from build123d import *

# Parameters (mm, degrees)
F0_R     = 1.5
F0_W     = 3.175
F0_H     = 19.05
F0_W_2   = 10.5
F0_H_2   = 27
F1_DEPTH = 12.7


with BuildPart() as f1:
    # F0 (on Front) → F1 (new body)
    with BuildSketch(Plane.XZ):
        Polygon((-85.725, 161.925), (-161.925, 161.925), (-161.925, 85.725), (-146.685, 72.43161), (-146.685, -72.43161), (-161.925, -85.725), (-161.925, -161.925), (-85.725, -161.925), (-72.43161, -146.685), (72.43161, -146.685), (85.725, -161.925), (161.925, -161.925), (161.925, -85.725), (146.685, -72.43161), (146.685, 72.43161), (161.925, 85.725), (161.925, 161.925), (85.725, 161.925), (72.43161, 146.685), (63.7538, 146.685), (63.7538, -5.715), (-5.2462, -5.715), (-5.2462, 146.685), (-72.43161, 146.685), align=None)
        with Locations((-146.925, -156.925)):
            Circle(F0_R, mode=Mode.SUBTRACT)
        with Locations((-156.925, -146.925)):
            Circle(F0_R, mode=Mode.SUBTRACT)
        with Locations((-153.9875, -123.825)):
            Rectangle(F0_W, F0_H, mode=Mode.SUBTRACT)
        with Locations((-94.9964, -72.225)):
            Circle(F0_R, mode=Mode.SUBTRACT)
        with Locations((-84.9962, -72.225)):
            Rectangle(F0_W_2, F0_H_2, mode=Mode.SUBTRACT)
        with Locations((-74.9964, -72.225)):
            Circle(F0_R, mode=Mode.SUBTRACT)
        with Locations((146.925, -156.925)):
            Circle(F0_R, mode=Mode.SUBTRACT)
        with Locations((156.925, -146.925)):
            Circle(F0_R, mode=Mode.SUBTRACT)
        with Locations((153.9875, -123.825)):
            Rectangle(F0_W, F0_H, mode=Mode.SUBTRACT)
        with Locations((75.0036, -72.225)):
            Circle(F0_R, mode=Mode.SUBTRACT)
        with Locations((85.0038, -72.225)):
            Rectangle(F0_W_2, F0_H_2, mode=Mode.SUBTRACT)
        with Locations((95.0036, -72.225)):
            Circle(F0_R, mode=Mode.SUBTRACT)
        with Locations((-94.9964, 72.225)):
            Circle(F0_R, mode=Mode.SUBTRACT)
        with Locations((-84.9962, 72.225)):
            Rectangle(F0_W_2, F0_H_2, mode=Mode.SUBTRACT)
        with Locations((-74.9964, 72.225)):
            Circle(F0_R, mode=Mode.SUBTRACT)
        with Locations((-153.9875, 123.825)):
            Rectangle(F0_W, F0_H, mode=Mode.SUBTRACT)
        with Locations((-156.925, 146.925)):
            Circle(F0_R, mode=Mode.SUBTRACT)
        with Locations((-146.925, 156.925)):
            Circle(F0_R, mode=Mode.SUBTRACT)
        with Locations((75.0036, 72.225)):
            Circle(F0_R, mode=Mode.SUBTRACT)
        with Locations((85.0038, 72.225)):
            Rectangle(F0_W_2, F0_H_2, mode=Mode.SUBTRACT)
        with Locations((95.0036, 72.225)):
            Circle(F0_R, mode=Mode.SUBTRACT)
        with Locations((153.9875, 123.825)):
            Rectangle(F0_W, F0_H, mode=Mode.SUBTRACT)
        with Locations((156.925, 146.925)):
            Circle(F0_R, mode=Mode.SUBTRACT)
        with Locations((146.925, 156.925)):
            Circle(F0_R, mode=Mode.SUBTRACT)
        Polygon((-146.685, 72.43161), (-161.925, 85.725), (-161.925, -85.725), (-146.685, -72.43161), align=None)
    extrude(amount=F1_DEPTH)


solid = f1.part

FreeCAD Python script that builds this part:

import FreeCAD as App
import Part
import Sketcher
Q = App.Units.Quantity


def add_polygon(sketch, points):
    """Adds a closed chain of lines whose ends are joined by coincident constraints."""
    first, n = sketch.GeometryCount, len(points)
    for a, b in zip(points, points[1:] + points[:1]):
        sketch.addGeometry(Part.LineSegment(App.Vector(*a, 0), App.Vector(*b, 0)), False)
    for i in range(n):
        sketch.addConstraint(Sketcher.Constraint("Coincident", first + i, 2, first + (i + 1) % n, 1))

doc = App.newDocument("Part")
body = doc.addObject("PartDesign::Body", "Body")

# Sketch on XZ plane
sketch1 = body.newObject("Sketcher::SketchObject", "Sketch")
sketch1.AttachmentSupport = (doc.getObject("XZ_Plane"), [""])
sketch1.MapMode = "FlatFace"
add_polygon(sketch1, [(-85.725, 161.925), (-161.925, 161.925), (-161.925, -161.925), (-85.725, -161.925), (-72.43161, -146.685), (72.43161, -146.685), (85.725, -161.925), (161.925, -161.925), (161.925, -85.725), (146.685, -72.43161), (146.685, 72.43161), (161.925, 85.725), (161.925, 161.925), (85.725, 161.925), (72.43161, 146.685), (63.7538, 146.685), (63.7538, -5.715), (-5.2462, -5.715), (-5.2462, 146.685), (-72.43161, 146.685)])  # lines 0-19
sketch1.addGeometry(Part.Circle(App.Vector(-146.925, -156.925, 0), App.Vector(0, 0, 1), 1.5), False)  # 20
sketch1.addGeometry(Part.Circle(App.Vector(-156.925, -146.925, 0), App.Vector(0, 0, 1), 1.5), False)  # 21
add_polygon(sketch1, [(-152.4, -133.35), (-155.575, -133.35), (-155.575, -114.3), (-152.4, -114.3)])  # lines 22-25
sketch1.addGeometry(Part.Circle(App.Vector(-94.9964, -72.225, 0), App.Vector(0, 0, 1), 1.5), False)  # 26
add_polygon(sketch1, [(-79.7462, -85.725), (-90.2462, -85.725), (-90.2462, -58.725), (-79.7462, -58.725)])  # lines 27-30
sketch1.addGeometry(Part.Circle(App.Vector(-74.9964, -72.225, 0), App.Vector(0, 0, 1), 1.5), False)  # 31
sketch1.addGeometry(Part.Circle(App.Vector(146.925, -156.925, 0), App.Vector(0, 0, 1), 1.5), False)  # 32
sketch1.addGeometry(Part.Circle(App.Vector(156.925, -146.925, 0), App.Vector(0, 0, 1), 1.5), False)  # 33
add_polygon(sketch1, [(155.575, -133.35), (152.4, -133.35), (152.4, -114.3), (155.575, -114.3)])  # lines 34-37
sketch1.addGeometry(Part.Circle(App.Vector(75.0036, -72.225, 0), App.Vector(0, 0, 1), 1.5), False)  # 38
add_polygon(sketch1, [(90.2538, -85.725), (79.7538, -85.725), (79.7538, -58.725), (90.2538, -58.725)])  # lines 39-42
sketch1.addGeometry(Part.Circle(App.Vector(95.0036, -72.225, 0), App.Vector(0, 0, 1), 1.5), False)  # 43
sketch1.addGeometry(Part.Circle(App.Vector(-94.9964, 72.225, 0), App.Vector(0, 0, 1), 1.5), False)  # 44
add_polygon(sketch1, [(-79.7462, 58.725), (-90.2462, 58.725), (-90.2462, 85.725), (-79.7462, 85.725)])  # lines 45-48
sketch1.addGeometry(Part.Circle(App.Vector(-74.9964, 72.225, 0), App.Vector(0, 0, 1), 1.5), False)  # 49
add_polygon(sketch1, [(-152.4, 114.3), (-155.575, 114.3), (-155.575, 133.35), (-152.4, 133.35)])  # lines 50-53
sketch1.addGeometry(Part.Circle(App.Vector(-156.925, 146.925, 0), App.Vector(0, 0, 1), 1.5), False)  # 54
sketch1.addGeometry(Part.Circle(App.Vector(-146.925, 156.925, 0), App.Vector(0, 0, 1), 1.5), False)  # 55
sketch1.addGeometry(Part.Circle(App.Vector(75.0036, 72.225, 0), App.Vector(0, 0, 1), 1.5), False)  # 56
add_polygon(sketch1, [(90.2538, 58.725), (79.7538, 58.725), (79.7538, 85.725), (90.2538, 85.725)])  # lines 57-60
sketch1.addGeometry(Part.Circle(App.Vector(95.0036, 72.225, 0), App.Vector(0, 0, 1), 1.5), False)  # 61
add_polygon(sketch1, [(155.575, 114.3), (152.4, 114.3), (152.4, 133.35), (155.575, 133.35)])  # lines 62-65
sketch1.addGeometry(Part.Circle(App.Vector(156.925, 146.925, 0), App.Vector(0, 0, 1), 1.5), False)  # 66
sketch1.addGeometry(Part.Circle(App.Vector(146.925, 156.925, 0), App.Vector(0, 0, 1), 1.5), False)  # 67
sketch1.addConstraint([
    Sketcher.Constraint("Horizontal", 0),
    Sketcher.Constraint("Vertical", 1),
    Sketcher.Constraint("Horizontal", 2),
    Sketcher.Constraint("Horizontal", 4),
    Sketcher.Constraint("Horizontal", 6),
    Sketcher.Constraint("Vertical", 7),
    Sketcher.Constraint("Vertical", 9),
    Sketcher.Constraint("Vertical", 11),
    Sketcher.Constraint("Horizontal", 12),
    Sketcher.Constraint("Horizontal", 14),
    Sketcher.Constraint("Vertical", 15),
    Sketcher.Constraint("Horizontal", 16),
    Sketcher.Constraint("Vertical", 17),
    Sketcher.Constraint("Horizontal", 18),
    Sketcher.Constraint("Horizontal", 22),
    Sketcher.Constraint("Vertical", 23),
    Sketcher.Constraint("Horizontal", 24),
    Sketcher.Constraint("Vertical", 25),
    Sketcher.Constraint("Horizontal", 27),
    Sketcher.Constraint("Vertical", 28),
    Sketcher.Constraint("Horizontal", 29),
    Sketcher.Constraint("Vertical", 30),
    Sketcher.Constraint("Horizontal", 34),
    Sketcher.Constraint("Vertical", 35),
    Sketcher.Constraint("Horizontal", 36),
    Sketcher.Constraint("Vertical", 37),
    Sketcher.Constraint("Horizontal", 39),
    Sketcher.Constraint("Vertical", 40),
    Sketcher.Constraint("Horizontal", 41),
    Sketcher.Constraint("Vertical", 42),
    Sketcher.Constraint("Horizontal", 45),
    Sketcher.Constraint("Vertical", 46),
    Sketcher.Constraint("Horizontal", 47),
    Sketcher.Constraint("Vertical", 48),
    Sketcher.Constraint("Horizontal", 50),
    Sketcher.Constraint("Vertical", 51),
    Sketcher.Constraint("Horizontal", 52),
    Sketcher.Constraint("Vertical", 53),
    Sketcher.Constraint("Horizontal", 57),
    Sketcher.Constraint("Vertical", 58),
    Sketcher.Constraint("Horizontal", 59),
    Sketcher.Constraint("Vertical", 60),
    Sketcher.Constraint("Horizontal", 62),
    Sketcher.Constraint("Vertical", 63),
    Sketcher.Constraint("Horizontal", 64),
    Sketcher.Constraint("Vertical", 65),
    Sketcher.Constraint("Equal", 20, 21),
    Sketcher.Constraint("Equal", 21, 26),
    Sketcher.Constraint("Equal", 26, 31),
    Sketcher.Constraint("Equal", 31, 32),
    Sketcher.Constraint("Equal", 32, 33),
    Sketcher.Constraint("Equal", 33, 38),
    Sketcher.Constraint("Equal", 38, 43),
    Sketcher.Constraint("Equal", 43, 44),
    Sketcher.Constraint("Equal", 44, 49),
    Sketcher.Constraint("Equal", 49, 54),
    Sketcher.Constraint("Equal", 54, 55),
    Sketcher.Constraint("Equal", 55, 56),
    Sketcher.Constraint("Equal", 56, 61),
    Sketcher.Constraint("Equal", 61, 66),
    Sketcher.Constraint("Equal", 66, 67),
    Sketcher.Constraint("Symmetric", 33, 3, 54, 3, -1, 1),
    Sketcher.Constraint("Symmetric", 32, 3, 55, 3, -1, 1),
    Sketcher.Constraint("Symmetric", 21, 3, 66, 3, -1, 1),
    Sketcher.Constraint("Symmetric", 20, 3, 67, 3, -1, 1),
    Sketcher.Constraint("Symmetric", 0, 2, 6, 2, -1, 1),
    Sketcher.Constraint("Symmetric", 1, 2, 11, 2, -1, 1),
    Sketcher.Constraint("Symmetric", 3, 2, 13, 2, -1, 1),
    Sketcher.Constraint("Symmetric", 4, 2, 18, 2, -1, 1),
    Sketcher.Constraint("Symmetric", 36, 2, 50, 2, -1, 1),
    Sketcher.Constraint("Symmetric", 34, 2, 52, 2, -1, 1),
    Sketcher.Constraint("Symmetric", 24, 2, 62, 2, -1, 1),
    Sketcher.Constraint("Symmetric", 22, 2, 64, 2, -1, 1),
    Sketcher.Constraint("Symmetric", 20, 3, 32, 3, -2),
    Sketcher.Constraint("Symmetric", 21, 3, 33, 3, -2),
    Sketcher.Constraint("Symmetric", 2, 2, 5, 2, -2),
    Sketcher.Constraint("Symmetric", 25, 2, 34, 2, -2),
    Sketcher.Constraint("Symmetric", 23, 2, 36, 2, -2),
    Sketcher.Constraint("Symmetric", 26, 3, 44, 3, -1),
    Sketcher.Constraint("Symmetric", 31, 3, 49, 3, -1),
    Sketcher.Constraint("Symmetric", 38, 3, 56, 3, -1),
    Sketcher.Constraint("Symmetric", 43, 3, 61, 3, -1),
    Sketcher.Constraint("Symmetric", 28, 2, 45, 2, -1),
    Sketcher.Constraint("Symmetric", 30, 2, 47, 2, -1),
    Sketcher.Constraint("Symmetric", 40, 2, 57, 2, -1),
    Sketcher.Constraint("Symmetric", 42, 2, 59, 2, -1),
    Sketcher.Constraint("Perpendicular", 3, 8),
    Sketcher.Constraint("Perpendicular", 5, 10),
    Sketcher.Constraint("Perpendicular", 8, 13),
    Sketcher.Constraint("Perpendicular", 10, 19),
    Sketcher.Constraint("Horizontal", 26, 3, 31, 3),
    Sketcher.Constraint("Horizontal", 31, 3, 38, 3),
    Sketcher.Constraint("Horizontal", 38, 3, 43, 3),
    Sketcher.Constraint("Horizontal", 7, 2, 27, 2),
    Sketcher.Constraint("Horizontal", 30, 2, 39, 2),
    Sketcher.Constraint("Horizontal", 29, 2, 40, 2),
    Sketcher.Constraint("Horizontal", 10, 2, 46, 2),
    Sketcher.Constraint("Vertical", 4, 2, 13, 2),
    Sketcher.Constraint("Equal", 29, 39),
    Sketcher.Constraint("Equal", 12, 7),
    Sketcher.Constraint("Equal", 4, 9),
    Sketcher.Constraint("Equal", 5, 8),
    Sketcher.Constraint("DistanceX", 0, 2, 0, 1, Q("3 in")),
    Sketcher.Constraint("DistanceY", 15, 2, 15, 1, Q("6 in")),
    Sketcher.Constraint("DistanceX", 24, 2, -1, 1, Q("6 in")),
    Sketcher.Constraint("DistanceY", 1, 2, 1, 1, Q("12.75 in")),
    Sketcher.Constraint("DistanceY", 23, 1, 23, 2, Q("0.75 in")),
    Sketcher.Constraint("DistanceY", 23, 2, -1, 1, Q("4.5 in")),
    Sketcher.Constraint("Diameter", 20, Q("3 mm")),
    Sketcher.Constraint("DistanceX", 22, 2, 22, 1, Q("0.125 in")),
    Sketcher.Constraint("DistanceY", 3, 2, -1, 1, Q("5.775 in")),
    Sketcher.Constraint("DistanceX", 27, 2, -1, 1, Q("3.553 in")),
    Sketcher.Constraint("DistanceX", 16, 2, 16, 1, Q("69 mm")),
    Sketcher.Constraint("DistanceX", 27, 2, 27, 1, Q("10.5 mm")),
    Sketcher.Constraint("DistanceY", 28, 1, 28, 2, Q("27 mm")),
    Sketcher.Constraint("DistanceX", 4, 1, 4, 2, Q("144.86322 mm")),
    Sketcher.Constraint("DistanceX", 14, 2, 14, 1, Q("8.67781 mm")),
    Sketcher.Constraint("DistanceX", 20, 3, -1, 1, Q("146.925 mm")),
    Sketcher.Constraint("DistanceY", 20, 3, -1, 1, Q("156.925 mm")),
    Sketcher.Constraint("DistanceX", 21, 3, -1, 1, Q("156.925 mm")),
    Sketcher.Constraint("DistanceY", 21, 3, -1, 1, Q("146.925 mm")),
    Sketcher.Constraint("DistanceX", 26, 3, -1, 1, Q("94.9964 mm")),
    Sketcher.Constraint("DistanceY", 26, 3, -1, 1, Q("72.225 mm")),
    Sketcher.Constraint("DistanceX", 31, 3, -1, 1, Q("74.9964 mm")),
    Sketcher.Constraint("DistanceX", -1, 1, 38, 3, Q("75.0036 mm")),
    Sketcher.Constraint("DistanceX", -1, 1, 43, 3, Q("95.0036 mm")),
    Sketcher.Constraint("DistanceX", -1, 1, 39, 2, Q("79.7538 mm")),
])
pad1 = body.newObject("PartDesign::Pad", "Pad")
pad1.Profile = sketch1
pad1.Length = Q("0.5 in")

doc.recompute()
